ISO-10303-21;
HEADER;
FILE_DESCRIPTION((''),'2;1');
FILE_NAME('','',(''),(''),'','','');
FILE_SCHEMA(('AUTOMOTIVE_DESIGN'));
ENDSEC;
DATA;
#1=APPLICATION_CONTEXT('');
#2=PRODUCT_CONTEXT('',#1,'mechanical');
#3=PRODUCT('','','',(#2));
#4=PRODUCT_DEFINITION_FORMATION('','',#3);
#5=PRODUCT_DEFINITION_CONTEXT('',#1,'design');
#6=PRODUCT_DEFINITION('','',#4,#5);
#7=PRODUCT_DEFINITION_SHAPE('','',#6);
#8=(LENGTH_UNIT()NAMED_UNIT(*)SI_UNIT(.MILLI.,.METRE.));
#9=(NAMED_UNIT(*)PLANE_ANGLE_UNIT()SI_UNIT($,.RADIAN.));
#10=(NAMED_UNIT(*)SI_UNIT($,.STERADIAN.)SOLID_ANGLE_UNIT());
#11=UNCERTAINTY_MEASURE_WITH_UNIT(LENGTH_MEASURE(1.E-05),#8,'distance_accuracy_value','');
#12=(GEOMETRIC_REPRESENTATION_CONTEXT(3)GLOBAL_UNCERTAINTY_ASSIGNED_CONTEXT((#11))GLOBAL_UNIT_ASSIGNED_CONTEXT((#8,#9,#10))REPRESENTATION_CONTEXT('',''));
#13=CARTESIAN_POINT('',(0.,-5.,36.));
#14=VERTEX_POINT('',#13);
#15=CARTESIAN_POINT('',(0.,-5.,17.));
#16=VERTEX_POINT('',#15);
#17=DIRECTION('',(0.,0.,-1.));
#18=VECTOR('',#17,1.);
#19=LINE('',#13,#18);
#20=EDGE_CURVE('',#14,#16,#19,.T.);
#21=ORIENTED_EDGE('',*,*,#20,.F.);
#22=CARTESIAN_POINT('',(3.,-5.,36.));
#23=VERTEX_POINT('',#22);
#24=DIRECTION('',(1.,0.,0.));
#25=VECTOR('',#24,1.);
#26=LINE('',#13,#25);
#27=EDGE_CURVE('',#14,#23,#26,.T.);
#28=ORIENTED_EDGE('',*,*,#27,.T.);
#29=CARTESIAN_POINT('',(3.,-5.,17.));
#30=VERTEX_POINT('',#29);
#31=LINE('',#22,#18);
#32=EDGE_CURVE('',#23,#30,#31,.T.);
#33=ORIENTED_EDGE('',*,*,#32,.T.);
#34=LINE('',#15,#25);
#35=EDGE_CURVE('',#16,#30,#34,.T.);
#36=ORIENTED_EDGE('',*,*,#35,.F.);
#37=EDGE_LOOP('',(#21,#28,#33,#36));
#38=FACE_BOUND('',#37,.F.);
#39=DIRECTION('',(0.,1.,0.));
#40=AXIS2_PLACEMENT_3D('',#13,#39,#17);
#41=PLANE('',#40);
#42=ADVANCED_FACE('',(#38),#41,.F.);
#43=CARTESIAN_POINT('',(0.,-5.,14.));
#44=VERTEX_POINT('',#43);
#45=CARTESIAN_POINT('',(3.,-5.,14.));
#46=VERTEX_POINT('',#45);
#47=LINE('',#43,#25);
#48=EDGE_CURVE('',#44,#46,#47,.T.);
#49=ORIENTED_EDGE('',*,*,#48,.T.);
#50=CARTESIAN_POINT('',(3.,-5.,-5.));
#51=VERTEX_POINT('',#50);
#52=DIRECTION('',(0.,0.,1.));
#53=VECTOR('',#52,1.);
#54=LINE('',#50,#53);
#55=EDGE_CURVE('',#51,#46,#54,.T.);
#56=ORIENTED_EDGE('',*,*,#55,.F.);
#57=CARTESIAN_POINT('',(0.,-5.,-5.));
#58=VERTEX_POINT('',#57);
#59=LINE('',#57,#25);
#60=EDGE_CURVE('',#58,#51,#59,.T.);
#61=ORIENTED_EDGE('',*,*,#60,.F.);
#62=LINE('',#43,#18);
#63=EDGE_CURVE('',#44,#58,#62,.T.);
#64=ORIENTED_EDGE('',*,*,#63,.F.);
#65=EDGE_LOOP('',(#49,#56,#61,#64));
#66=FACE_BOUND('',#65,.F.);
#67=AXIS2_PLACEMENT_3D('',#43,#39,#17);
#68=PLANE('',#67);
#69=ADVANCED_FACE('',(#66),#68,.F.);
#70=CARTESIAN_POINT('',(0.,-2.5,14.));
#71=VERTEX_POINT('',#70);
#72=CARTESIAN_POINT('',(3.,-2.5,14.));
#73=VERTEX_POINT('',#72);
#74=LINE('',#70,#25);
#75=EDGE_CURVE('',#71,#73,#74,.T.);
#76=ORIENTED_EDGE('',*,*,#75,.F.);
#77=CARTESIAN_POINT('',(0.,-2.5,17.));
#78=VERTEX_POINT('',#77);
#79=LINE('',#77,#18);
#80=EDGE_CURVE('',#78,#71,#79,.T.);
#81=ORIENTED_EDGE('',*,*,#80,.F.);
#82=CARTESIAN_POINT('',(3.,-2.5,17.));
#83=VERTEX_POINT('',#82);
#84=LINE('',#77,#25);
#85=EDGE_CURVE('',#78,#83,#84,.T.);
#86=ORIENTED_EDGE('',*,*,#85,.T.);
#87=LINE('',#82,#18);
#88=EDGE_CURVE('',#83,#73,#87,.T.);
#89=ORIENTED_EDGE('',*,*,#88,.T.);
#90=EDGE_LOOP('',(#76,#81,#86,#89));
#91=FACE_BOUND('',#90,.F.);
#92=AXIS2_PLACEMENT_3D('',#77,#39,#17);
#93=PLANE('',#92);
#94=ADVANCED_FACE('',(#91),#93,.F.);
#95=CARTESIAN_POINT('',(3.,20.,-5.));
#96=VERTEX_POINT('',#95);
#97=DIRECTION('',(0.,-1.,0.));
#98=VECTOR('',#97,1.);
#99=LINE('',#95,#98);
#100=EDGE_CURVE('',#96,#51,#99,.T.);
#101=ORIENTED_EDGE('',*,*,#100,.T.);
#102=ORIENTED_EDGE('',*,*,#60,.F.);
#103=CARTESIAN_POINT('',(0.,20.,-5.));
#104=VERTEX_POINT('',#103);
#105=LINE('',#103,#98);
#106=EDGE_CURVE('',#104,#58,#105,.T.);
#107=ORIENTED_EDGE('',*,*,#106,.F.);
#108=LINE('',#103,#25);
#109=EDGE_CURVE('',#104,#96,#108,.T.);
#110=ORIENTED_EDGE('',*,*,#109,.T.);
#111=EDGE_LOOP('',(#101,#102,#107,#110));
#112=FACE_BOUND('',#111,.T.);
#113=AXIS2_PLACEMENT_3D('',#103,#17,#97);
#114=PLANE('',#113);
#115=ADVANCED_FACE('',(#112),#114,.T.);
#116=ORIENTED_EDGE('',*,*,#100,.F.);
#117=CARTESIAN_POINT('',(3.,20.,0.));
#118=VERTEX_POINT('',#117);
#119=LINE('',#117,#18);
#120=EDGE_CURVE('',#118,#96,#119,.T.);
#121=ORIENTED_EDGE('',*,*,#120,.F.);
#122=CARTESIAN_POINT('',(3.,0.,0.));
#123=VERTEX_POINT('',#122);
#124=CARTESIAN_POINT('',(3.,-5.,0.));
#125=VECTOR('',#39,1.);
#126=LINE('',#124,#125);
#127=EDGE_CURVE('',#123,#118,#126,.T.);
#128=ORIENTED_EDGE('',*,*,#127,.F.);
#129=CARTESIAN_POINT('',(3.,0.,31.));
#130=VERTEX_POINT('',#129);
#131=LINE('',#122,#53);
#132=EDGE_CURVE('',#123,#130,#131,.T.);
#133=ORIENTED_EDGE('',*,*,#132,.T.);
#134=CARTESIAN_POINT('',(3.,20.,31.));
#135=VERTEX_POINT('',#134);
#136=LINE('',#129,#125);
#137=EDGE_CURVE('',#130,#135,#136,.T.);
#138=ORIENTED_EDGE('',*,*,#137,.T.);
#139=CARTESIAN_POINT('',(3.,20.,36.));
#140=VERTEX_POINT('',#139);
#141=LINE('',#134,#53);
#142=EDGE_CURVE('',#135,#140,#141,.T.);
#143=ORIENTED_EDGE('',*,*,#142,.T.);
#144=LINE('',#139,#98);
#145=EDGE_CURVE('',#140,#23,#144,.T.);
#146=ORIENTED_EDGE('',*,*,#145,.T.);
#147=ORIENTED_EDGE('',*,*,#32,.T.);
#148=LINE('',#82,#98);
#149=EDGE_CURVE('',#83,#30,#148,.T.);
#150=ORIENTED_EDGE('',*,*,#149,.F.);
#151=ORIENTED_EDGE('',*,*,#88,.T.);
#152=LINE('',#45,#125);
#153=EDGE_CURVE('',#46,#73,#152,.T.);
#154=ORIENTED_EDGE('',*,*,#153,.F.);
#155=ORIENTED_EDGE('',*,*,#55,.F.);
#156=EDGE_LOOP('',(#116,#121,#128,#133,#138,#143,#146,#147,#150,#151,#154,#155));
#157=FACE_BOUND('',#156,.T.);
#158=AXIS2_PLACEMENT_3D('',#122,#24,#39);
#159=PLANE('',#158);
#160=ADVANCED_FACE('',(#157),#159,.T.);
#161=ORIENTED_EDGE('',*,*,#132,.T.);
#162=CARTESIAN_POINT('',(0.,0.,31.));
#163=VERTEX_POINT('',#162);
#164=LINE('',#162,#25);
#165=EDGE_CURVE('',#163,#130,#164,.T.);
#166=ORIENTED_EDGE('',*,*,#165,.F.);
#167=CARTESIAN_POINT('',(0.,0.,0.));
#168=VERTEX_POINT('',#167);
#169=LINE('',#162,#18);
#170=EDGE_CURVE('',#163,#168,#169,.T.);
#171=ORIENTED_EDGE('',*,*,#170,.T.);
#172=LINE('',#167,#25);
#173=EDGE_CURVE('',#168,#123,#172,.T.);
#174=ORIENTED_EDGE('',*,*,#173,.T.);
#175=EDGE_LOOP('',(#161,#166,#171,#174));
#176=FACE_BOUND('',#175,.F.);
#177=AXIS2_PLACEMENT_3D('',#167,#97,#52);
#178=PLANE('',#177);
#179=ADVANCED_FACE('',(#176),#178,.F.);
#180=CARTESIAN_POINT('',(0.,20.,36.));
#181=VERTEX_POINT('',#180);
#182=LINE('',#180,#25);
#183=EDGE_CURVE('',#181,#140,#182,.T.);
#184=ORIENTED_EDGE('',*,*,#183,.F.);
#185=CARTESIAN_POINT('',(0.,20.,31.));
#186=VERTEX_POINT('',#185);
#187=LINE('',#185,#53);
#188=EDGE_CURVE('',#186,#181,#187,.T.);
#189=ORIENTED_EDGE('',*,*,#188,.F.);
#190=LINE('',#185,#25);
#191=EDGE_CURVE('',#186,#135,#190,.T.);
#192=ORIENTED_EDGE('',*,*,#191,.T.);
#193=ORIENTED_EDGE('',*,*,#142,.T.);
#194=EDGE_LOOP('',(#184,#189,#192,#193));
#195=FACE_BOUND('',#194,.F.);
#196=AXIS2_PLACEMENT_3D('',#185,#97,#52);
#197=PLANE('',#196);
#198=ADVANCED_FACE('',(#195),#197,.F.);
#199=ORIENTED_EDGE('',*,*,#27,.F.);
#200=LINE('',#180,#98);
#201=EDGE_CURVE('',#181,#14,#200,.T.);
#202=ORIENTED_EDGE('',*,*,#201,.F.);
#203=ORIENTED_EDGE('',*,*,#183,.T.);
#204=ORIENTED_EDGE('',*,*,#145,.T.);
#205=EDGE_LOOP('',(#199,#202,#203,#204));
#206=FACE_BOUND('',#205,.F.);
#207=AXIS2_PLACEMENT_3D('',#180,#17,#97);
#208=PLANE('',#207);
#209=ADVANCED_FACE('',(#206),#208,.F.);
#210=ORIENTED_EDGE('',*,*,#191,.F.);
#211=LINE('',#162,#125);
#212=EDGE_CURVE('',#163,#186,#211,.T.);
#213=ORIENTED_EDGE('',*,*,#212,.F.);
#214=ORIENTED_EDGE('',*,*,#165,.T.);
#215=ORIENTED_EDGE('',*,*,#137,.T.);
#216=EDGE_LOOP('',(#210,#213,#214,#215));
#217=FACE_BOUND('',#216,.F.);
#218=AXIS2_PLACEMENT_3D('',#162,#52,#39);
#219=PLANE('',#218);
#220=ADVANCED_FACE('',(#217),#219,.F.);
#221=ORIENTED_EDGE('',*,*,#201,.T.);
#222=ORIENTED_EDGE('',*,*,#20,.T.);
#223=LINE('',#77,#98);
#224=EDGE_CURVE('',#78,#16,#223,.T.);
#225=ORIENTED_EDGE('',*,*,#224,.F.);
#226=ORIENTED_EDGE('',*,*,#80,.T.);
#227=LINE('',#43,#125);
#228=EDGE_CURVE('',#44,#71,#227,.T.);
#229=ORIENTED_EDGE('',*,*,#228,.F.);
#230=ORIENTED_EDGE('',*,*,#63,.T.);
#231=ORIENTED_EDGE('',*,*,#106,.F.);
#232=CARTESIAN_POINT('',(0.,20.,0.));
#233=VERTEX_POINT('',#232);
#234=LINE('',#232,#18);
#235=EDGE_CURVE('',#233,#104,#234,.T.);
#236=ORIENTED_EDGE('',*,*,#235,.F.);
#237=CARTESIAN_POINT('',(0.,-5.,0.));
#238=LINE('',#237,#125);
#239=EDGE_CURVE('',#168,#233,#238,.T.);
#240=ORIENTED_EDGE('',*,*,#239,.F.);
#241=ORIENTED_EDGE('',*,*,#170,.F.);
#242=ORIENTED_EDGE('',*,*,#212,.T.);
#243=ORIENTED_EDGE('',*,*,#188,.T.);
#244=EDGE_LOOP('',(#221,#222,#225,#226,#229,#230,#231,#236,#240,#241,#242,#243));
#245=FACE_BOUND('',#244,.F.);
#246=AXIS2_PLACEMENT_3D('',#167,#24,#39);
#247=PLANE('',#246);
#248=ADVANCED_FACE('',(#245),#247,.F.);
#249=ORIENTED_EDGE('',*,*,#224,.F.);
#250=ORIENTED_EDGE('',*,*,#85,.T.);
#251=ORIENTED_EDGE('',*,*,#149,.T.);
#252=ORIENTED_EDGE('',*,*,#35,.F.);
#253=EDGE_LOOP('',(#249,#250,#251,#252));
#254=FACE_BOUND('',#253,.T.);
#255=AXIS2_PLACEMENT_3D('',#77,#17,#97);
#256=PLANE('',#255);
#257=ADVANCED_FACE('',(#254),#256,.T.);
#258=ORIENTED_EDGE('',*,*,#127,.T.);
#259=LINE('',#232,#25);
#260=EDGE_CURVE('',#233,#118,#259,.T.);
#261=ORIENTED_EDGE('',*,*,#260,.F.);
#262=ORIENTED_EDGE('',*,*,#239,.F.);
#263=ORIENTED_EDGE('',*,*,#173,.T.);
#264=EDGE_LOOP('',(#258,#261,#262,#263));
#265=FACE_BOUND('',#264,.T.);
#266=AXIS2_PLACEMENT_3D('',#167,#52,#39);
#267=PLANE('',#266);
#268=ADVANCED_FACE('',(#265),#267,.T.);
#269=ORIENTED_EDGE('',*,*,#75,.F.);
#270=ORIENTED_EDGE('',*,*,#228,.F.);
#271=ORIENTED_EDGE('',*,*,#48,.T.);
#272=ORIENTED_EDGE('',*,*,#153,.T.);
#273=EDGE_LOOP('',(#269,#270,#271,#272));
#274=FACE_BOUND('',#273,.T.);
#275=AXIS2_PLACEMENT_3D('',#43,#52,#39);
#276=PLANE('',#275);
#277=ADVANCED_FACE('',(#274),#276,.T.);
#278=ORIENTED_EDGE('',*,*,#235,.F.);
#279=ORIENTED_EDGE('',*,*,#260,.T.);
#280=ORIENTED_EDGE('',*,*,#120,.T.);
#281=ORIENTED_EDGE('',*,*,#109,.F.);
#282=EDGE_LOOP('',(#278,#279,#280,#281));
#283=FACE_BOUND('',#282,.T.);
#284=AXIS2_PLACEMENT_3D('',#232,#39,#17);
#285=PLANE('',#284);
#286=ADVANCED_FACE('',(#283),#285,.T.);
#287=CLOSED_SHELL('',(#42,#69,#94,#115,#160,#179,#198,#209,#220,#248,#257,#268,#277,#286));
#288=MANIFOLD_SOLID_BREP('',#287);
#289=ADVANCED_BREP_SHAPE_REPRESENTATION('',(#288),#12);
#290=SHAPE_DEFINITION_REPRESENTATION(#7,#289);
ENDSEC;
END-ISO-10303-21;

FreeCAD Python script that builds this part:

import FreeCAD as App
import Part
import Sketcher
from FreeCAD import Vector
Q = App.Units.Quantity


def add_polygon(sketch, points):
    """Adds a closed chain of lines whose ends are joined by coincident constraints."""
    first, n = sketch.GeometryCount, len(points)
    for a, b in zip(points, points[1:] + points[:1]):
        sketch.addGeometry(Part.LineSegment(App.Vector(*a, 0), App.Vector(*b, 0)), False)
    for i in range(n):
        sketch.addConstraint(Sketcher.Constraint("Coincident", first + i, 2, first + (i + 1) % n, 1))

doc = App.newDocument("Part")
body = doc.addObject("PartDesign::Body", "Body")

# Sketch on YZ plane
sketch1 = body.newObject("Sketcher::SketchObject", "Sketch")
sketch1.AttachmentSupport = (doc.getObject("YZ_Plane"), [""])
sketch1.MapMode = "FlatFace"
add_polygon(sketch1, [(-5, 14), (-5, -5), (20, -5), (20, 0), (0, 0), (0, 31), (20, 31), (20, 36), (-5, 36), (-5, 17), (-2.5, 17), (-2.5, 14)])  # lines 0-11
sketch1.addConstraint([
    Sketcher.Constraint("Vertical", 0),
    Sketcher.Constraint("Horizontal", 1),
    Sketcher.Constraint("Vertical", 2),
    Sketcher.Constraint("Horizontal", 3),
    Sketcher.Constraint("Vertical", 4),
    Sketcher.Constraint("Horizontal", 5),
    Sketcher.Constraint("Vertical", 6),
    Sketcher.Constraint("Horizontal", 7),
    Sketcher.Constraint("Vertical", 8),
    Sketcher.Constraint("Horizontal", 9),
    Sketcher.Constraint("Vertical", 10),
    Sketcher.Constraint("Horizontal", 11),
    Sketcher.Constraint("Coincident", 3, 2, -1, 1),
    Sketcher.Constraint("Vertical", 2, 2, 5, 2),
    Sketcher.Constraint("Vertical", 0, 2, 7, 2),
    Sketcher.Constraint("Equal", 2, 6),
    Sketcher.Constraint("Equal", 0, 8),
    Sketcher.Constraint("DistanceX", 1, 1, 1, 2, Q("25 mm")),
    Sketcher.Constraint("DistanceX", 3, 2, 3, 1, Q("20 mm")),
    Sketcher.Constraint("DistanceY", 2, 1, 2, 2, Q("5 mm")),
    Sketcher.Constraint("DistanceY", 4, 1, 4, 2, Q("31 mm")),
    Sketcher.Constraint("DistanceY", 10, 2, 10, 1, Q("3 mm")),
    Sketcher.Constraint("DistanceX", 9, 1, 9, 2, Q("2.5 mm")),
])
pad1 = body.newObject("PartDesign::Pad", "Pad")
pad1.Profile = sketch1
pad1.Length = 3

doc.recompute()
